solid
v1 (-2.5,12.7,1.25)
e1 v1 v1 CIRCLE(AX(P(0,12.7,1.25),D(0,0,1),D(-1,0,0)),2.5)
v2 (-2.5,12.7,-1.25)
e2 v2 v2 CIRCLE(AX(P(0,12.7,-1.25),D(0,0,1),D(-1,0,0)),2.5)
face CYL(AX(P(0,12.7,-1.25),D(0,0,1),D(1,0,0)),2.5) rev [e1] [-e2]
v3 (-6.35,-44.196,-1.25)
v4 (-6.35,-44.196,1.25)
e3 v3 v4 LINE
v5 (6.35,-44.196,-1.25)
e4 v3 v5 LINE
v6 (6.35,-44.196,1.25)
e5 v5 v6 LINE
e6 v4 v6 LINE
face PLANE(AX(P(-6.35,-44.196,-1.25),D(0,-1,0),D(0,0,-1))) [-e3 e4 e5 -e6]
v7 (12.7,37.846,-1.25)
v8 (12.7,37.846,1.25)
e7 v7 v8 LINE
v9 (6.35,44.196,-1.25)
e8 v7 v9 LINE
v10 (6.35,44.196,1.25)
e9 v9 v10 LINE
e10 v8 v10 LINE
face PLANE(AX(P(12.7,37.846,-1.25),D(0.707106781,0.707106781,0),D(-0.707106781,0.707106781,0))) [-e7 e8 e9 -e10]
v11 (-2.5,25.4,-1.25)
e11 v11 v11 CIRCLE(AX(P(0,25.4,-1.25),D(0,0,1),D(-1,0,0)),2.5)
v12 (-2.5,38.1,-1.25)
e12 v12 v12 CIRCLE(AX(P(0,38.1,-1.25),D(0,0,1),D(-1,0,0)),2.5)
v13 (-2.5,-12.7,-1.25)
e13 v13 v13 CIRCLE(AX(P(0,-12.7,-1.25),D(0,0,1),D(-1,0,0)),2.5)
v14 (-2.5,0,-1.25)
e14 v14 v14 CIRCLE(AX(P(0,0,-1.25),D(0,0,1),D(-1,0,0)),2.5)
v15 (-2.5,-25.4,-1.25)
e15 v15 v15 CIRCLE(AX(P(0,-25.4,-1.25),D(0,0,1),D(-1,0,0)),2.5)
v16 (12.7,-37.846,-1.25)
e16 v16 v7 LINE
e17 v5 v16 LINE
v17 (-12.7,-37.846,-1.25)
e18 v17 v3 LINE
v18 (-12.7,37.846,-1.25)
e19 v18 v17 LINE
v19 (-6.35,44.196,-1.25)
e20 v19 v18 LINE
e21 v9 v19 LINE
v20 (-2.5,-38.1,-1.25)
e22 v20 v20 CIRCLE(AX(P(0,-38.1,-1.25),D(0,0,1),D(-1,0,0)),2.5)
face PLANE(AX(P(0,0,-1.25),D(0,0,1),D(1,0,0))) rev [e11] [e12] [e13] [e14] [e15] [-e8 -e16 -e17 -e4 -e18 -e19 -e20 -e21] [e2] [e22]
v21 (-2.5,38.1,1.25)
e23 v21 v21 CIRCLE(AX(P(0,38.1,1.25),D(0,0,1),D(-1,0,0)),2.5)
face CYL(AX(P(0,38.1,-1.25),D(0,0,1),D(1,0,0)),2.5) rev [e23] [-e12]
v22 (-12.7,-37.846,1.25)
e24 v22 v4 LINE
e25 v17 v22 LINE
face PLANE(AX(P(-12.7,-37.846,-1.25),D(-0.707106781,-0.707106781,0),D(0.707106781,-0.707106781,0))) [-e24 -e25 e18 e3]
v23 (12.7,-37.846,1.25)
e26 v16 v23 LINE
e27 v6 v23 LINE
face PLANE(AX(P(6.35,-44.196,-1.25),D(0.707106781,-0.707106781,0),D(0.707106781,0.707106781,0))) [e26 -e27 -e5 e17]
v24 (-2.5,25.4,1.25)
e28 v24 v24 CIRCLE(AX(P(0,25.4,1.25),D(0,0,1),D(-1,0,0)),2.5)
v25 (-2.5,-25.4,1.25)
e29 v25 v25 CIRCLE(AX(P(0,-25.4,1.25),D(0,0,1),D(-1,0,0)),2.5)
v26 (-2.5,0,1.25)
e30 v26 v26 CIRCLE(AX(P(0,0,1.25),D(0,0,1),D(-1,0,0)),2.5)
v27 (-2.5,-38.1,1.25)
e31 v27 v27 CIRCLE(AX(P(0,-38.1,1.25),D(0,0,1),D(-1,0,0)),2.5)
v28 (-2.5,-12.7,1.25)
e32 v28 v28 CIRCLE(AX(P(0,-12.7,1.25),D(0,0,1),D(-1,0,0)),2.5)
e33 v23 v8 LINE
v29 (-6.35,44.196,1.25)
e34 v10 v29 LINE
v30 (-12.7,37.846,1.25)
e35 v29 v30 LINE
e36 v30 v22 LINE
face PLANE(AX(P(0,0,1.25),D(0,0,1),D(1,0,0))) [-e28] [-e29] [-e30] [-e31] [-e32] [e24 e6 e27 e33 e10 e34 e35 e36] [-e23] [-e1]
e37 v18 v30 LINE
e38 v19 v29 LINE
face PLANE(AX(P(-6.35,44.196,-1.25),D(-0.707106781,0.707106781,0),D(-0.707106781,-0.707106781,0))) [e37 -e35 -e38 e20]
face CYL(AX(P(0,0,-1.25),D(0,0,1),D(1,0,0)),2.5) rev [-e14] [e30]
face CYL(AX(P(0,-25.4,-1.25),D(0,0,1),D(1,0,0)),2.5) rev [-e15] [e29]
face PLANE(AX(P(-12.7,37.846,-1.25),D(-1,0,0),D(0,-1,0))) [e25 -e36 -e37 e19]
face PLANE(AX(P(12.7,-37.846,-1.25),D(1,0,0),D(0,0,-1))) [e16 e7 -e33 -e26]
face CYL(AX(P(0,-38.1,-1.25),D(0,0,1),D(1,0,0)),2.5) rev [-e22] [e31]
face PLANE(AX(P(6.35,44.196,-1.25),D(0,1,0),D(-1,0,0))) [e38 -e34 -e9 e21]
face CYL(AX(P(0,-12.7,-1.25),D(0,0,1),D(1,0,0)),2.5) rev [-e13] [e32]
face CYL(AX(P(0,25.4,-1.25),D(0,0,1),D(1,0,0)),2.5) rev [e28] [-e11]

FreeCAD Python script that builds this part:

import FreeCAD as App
import Part
import Sketcher
Q = App.Units.Quantity

doc = App.newDocument("Part")
body = doc.addObject("PartDesign::Body", "Body")

sketch1 = body.newObject("Sketcher::SketchObject", "Sketch")
sketch1.AttachmentSupport = (doc.getObject("XY_Plane"), [""])
sketch1.MapMode = "FlatFace"
sketch1.AttachmentOffset = App.Placement(App.Vector(0, 0, 1.25), App.Rotation())
sketch1.addGeometry(Part.LineSegment(App.Vector(-12.7, 37.8, 0), App.Vector(-12.7, -37.8, 0)), False)
sketch1.addGeometry(Part.LineSegment(App.Vector(-12.7, -37.8, 0), App.Vector(-6.3, -44.2, 0)), False)
sketch1.addGeometry(Part.LineSegment(App.Vector(-6.3, -44.2, 0), App.Vector(6.3, -44.2, 0)), False)
sketch1.addGeometry(Part.LineSegment(App.Vector(6.3, -44.2, 0), App.Vector(12.7, -37.8, 0)), False)
sketch1.addGeometry(Part.LineSegment(App.Vector(12.7, -37.8, 0), App.Vector(12.7, 37.8, 0)), False)
sketch1.addGeometry(Part.LineSegment(App.Vector(12.7, 37.8, 0), App.Vector(6.3, 44.2, 0)), False)
sketch1.addGeometry(Part.LineSegment(App.Vector(6.3, 44.2, 0), App.Vector(-6.3, 44.2, 0)), False)
sketch1.addGeometry(Part.LineSegment(App.Vector(-6.3, 44.2, 0), App.Vector(-12.7, 37.8, 0)), False)
sketch1.addGeometry(Part.Circle(App.Vector(0, -38.1, 0), App.Vector(0, 0, 1), 2.5), False)
sketch1.addGeometry(Part.Circle(App.Vector(0, -25.4, 0), App.Vector(0, 0, 1), 2.5), False)
sketch1.addGeometry(Part.Circle(App.Vector(0, -12.7, 0), App.Vector(0, 0, 1), 2.5), False)
sketch1.addGeometry(Part.Circle(App.Vector(0, 0, 0), App.Vector(0, 0, 1), 2.5), False)
sketch1.addGeometry(Part.Circle(App.Vector(0, 12.7, 0), App.Vector(0, 0, 1), 2.5), False)
sketch1.addGeometry(Part.Circle(App.Vector(0, 25.4, 0), App.Vector(0, 0, 1), 2.5), False)
sketch1.addGeometry(Part.Circle(App.Vector(0, 38.1, 0), App.Vector(0, 0, 1), 2.5), False)
sketch1.addConstraint(Sketcher.Constraint("Coincident", 0, 2, 1, 1))
sketch1.addConstraint(Sketcher.Constraint("Coincident", 1, 2, 2, 1))
sketch1.addConstraint(Sketcher.Constraint("Coincident", 2, 2, 3, 1))
sketch1.addConstraint(Sketcher.Constraint("Coincident", 3, 2, 4, 1))
sketch1.addConstraint(Sketcher.Constraint("Coincident", 4, 2, 5, 1))
sketch1.addConstraint(Sketcher.Constraint("Coincident", 5, 2, 6, 1))
sketch1.addConstraint(Sketcher.Constraint("Coincident", 6, 2, 7, 1))
sketch1.addConstraint(Sketcher.Constraint("Coincident", 7, 2, 0, 1))
sketch1.addConstraint(Sketcher.Constraint("Vertical", 0))
sketch1.addConstraint(Sketcher.Constraint("Horizontal", 2))
sketch1.addConstraint(Sketcher.Constraint("Vertical", 4))
sketch1.addConstraint(Sketcher.Constraint("Horizontal", 6))
sketch1.addConstraint(Sketcher.Constraint("Coincident", 11, 3, -1, 1))
sketch1.addConstraint(Sketcher.Constraint("Equal", 8, 9))
sketch1.addConstraint(Sketcher.Constraint("Equal", 9, 10))
sketch1.addConstraint(Sketcher.Constraint("Equal", 10, 11))
sketch1.addConstraint(Sketcher.Constraint("Equal", 11, 12))
sketch1.addConstraint(Sketcher.Constraint("Equal", 12, 13))
sketch1.addConstraint(Sketcher.Constraint("Equal", 13, 14))
sketch1.addConstraint(Sketcher.Constraint("Symmetric", 10, 3, 12, 3, -1, 1))
sketch1.addConstraint(Sketcher.Constraint("Symmetric", 9, 3, 13, 3, -1, 1))
sketch1.addConstraint(Sketcher.Constraint("Symmetric", 8, 3, 14, 3, -1, 1))
sketch1.addConstraint(Sketcher.Constraint("Symmetric", 0, 2, 4, 2, -1, 1))
sketch1.addConstraint(Sketcher.Constraint("Symmetric", 1, 2, 5, 2, -1, 1))
sketch1.addConstraint(Sketcher.Constraint("PointOnObject", 8, 3, -2))
sketch1.addConstraint(Sketcher.Constraint("PointOnObject", 9, 3, -2))
sketch1.addConstraint(Sketcher.Constraint("PointOnObject", 10, 3, -2))
sketch1.addConstraint(Sketcher.Constraint("Perpendicular", 1, 3))
sketch1.addConstraint(Sketcher.Constraint("Perpendicular", 5, 7))
sketch1.addConstraint(Sketcher.Constraint("Horizontal", 0, 2, 3, 2))
sketch1.addConstraint(Sketcher.Constraint("Horizontal", 4, 2, 7, 2))
sketch1.addConstraint(Sketcher.Constraint("Vertical", 2, 2, 5, 2))
sketch1.addConstraint(Sketcher.Constraint("Diameter", 8, Q("5 mm")))
sketch1.addConstraint(Sketcher.Constraint("DistanceX", 2, 1, 2, 2, Q("12.7 mm")))
sketch1.addConstraint(Sketcher.Constraint("DistanceY", 8, 3, -1, 1, Q("38.1 mm")))
sketch1.addConstraint(Sketcher.Constraint("DistanceY", 9, 3, -1, 1, Q("25.4 mm")))
sketch1.addConstraint(Sketcher.Constraint("DistanceY", 10, 3, -1, 1, Q("12.7 mm")))
sketch1.addConstraint(Sketcher.Constraint("DistanceX", 0, 2, -1, 1, Q("12.7 mm")))
sketch1.addConstraint(Sketcher.Constraint("DistanceY", 0, 2, 0, 1, Q("75.692 mm")))
pad1 = body.newObject("PartDesign::Pad", "Pad")
pad1.Profile = sketch1
pad1.Length = 2.5
pad1.Reversed = True

doc.recompute()
